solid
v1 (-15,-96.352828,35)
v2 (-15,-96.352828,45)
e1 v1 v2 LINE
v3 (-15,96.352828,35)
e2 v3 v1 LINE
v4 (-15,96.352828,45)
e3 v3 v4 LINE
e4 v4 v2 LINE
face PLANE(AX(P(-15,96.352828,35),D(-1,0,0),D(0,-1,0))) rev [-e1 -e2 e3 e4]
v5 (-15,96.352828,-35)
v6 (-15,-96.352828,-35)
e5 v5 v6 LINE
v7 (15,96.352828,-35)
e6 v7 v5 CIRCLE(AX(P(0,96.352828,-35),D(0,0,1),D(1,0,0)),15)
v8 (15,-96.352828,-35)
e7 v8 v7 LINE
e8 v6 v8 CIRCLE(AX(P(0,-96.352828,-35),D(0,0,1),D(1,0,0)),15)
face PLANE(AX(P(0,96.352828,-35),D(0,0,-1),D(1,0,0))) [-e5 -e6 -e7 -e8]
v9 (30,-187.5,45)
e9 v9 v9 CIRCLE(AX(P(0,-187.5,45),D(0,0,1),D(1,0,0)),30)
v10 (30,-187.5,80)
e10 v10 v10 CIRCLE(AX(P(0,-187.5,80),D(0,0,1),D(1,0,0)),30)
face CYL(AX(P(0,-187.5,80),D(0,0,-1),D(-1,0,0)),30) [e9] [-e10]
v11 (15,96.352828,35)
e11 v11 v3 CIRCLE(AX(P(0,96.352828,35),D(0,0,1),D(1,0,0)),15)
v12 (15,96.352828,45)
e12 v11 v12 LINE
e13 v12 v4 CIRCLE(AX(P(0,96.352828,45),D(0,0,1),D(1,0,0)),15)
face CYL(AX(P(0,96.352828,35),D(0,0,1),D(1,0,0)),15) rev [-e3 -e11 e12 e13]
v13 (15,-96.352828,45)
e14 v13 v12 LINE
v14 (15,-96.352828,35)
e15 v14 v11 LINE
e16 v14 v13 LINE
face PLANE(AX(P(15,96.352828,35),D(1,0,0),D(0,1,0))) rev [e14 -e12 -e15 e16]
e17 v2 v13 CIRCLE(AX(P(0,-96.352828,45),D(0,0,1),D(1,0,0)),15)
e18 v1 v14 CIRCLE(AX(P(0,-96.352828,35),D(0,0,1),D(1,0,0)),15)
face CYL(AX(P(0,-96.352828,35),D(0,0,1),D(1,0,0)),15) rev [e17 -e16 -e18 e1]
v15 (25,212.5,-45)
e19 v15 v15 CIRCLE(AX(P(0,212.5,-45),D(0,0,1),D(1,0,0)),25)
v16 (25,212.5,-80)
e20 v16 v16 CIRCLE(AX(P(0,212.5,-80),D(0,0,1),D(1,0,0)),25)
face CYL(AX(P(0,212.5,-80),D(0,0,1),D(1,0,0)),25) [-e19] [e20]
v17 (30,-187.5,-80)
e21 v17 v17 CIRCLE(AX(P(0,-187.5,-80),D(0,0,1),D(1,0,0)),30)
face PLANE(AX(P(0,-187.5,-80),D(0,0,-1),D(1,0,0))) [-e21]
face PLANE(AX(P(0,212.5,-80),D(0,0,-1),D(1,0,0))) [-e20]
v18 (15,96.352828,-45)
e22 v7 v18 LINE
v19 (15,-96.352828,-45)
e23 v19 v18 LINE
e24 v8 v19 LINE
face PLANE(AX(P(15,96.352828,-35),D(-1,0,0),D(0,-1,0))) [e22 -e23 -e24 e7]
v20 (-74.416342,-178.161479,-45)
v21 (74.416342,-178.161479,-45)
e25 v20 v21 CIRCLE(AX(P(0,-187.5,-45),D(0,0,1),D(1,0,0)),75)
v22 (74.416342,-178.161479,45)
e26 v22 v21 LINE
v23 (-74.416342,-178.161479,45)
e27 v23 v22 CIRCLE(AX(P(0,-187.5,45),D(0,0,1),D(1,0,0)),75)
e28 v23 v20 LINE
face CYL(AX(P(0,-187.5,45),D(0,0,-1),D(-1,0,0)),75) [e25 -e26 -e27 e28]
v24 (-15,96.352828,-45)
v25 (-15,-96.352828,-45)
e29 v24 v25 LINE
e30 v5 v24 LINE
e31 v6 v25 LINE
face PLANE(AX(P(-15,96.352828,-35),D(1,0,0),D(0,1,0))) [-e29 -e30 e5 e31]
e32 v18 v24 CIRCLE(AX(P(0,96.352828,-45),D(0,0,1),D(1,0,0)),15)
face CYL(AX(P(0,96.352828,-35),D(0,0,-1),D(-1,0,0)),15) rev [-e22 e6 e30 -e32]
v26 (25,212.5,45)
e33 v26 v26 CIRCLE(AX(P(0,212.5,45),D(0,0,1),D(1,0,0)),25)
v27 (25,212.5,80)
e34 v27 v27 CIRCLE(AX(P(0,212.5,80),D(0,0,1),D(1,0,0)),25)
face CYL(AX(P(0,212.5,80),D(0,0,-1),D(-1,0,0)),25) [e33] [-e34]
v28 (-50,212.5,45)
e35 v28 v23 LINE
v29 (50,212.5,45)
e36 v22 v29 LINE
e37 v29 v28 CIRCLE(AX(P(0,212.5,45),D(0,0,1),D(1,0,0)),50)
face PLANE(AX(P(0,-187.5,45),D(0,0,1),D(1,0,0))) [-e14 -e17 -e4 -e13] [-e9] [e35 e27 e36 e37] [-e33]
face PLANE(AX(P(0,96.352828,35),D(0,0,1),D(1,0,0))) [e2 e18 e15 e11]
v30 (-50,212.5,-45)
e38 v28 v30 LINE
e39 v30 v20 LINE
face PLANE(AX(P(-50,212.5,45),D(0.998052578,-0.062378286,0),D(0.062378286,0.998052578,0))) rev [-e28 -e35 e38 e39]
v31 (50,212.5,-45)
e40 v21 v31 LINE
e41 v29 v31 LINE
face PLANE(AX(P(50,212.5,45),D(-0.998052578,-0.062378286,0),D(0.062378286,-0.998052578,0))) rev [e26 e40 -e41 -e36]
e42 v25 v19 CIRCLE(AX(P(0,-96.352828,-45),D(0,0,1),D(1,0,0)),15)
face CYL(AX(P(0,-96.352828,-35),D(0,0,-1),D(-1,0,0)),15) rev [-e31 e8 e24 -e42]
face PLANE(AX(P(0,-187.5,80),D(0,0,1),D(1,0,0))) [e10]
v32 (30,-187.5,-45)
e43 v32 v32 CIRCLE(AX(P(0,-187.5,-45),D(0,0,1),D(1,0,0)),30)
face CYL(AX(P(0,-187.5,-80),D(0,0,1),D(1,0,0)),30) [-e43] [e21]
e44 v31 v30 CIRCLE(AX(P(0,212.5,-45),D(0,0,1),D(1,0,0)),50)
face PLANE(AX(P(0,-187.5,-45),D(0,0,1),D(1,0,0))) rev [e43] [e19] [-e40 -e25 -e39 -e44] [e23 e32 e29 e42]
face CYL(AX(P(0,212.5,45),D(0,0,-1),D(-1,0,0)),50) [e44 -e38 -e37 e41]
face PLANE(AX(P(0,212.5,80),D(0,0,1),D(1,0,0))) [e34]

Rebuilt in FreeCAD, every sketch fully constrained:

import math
import FreeCAD as App
import Part
import Sketcher

V = App.Vector

doc = App.newDocument("Part")
body = doc.addObject("PartDesign::Body", "Body")

sketch1 = body.newObject("Sketcher::SketchObject", "Sketch")
sketch1.AttachmentSupport = (doc.getObject("XY_Plane"), [""])
sketch1.MapMode = "FlatFace"
sketch1.addGeometry(Part.LineSegment(V(-50, 212, 0), V(-74, -178, 0)), False)
sketch1.addGeometry(Part.ArcOfCircle(Part.Circle(V(0, -188, 0), V(0, 0, 1), 75), math.radians(173), math.radians(367)), False)
sketch1.addGeometry(Part.LineSegment(V(74, -178, 0), V(50, 212, 0)), False)
sketch1.addGeometry(Part.ArcOfCircle(Part.Circle(V(0, 212, 0), V(0, 0, 1), 50), math.radians(0), math.radians(180)), False)
sketch1.addConstraint(Sketcher.Constraint("Coincident", 0, 2, 1, 1))
sketch1.addConstraint(Sketcher.Constraint("Coincident", 1, 2, 2, 1))
sketch1.addConstraint(Sketcher.Constraint("Coincident", 2, 2, 3, 1))
sketch1.addConstraint(Sketcher.Constraint("Coincident", 3, 2, 0, 1))
sketch1.addConstraint(Sketcher.Constraint("Symmetric", 0, 2, 1, 2, -2))
sketch1.addConstraint(Sketcher.Constraint("Symmetric", 2, 2, 3, 2, -2))
sketch1.addConstraint(Sketcher.Constraint("Horizontal", 3, 3, 2, 2))
sketch1.addConstraint(Sketcher.Constraint("Radius", 1, 75.0))
sketch1.addConstraint(Sketcher.Constraint("Radius", 3, 50.0))
sketch1.addConstraint(Sketcher.Constraint("DistanceY", 1, 3, 3, 3, 400.0))
sketch1.addConstraint(Sketcher.Constraint("DistanceY", 1, 3, -1, 1, 187.5))
sketch1.addConstraint(Sketcher.Constraint("DistanceY", 0, 2, -1, 1, 178.161479))
pad1 = body.newObject("PartDesign::Pad", "Pad")
pad1.Profile = sketch1
pad1.Length = 90
pad1.Midplane = True

sketch2 = body.newObject("Sketcher::SketchObject", "Sketch001")
sketch2.AttachmentSupport = (doc.getObject("XY_Plane"), [""])
sketch2.MapMode = "FlatFace"
sketch2.AttachmentOffset = App.Placement(V(0, 0, 45), App.Rotation())
sketch2.addGeometry(Part.Circle(V(0, 212, 0), V(0, 0, 1), 25), False)
sketch2.addGeometry(Part.Circle(V(0, -188, 0), V(0, 0, 1), 30), False)
sketch2.addConstraint(Sketcher.Constraint("PointOnObject", 0, 3, -2))
sketch2.addConstraint(Sketcher.Constraint("PointOnObject", 1, 3, -2))
sketch2.addConstraint(Sketcher.Constraint("Diameter", 0, 50.0))
sketch2.addConstraint(Sketcher.Constraint("Diameter", 1, 60.0))
sketch2.addConstraint(Sketcher.Constraint("DistanceY", 1, 3, 0, 3, 400.0))
sketch2.addConstraint(Sketcher.Constraint("DistanceY", -1, 1, 0, 3, 212.5))
pad2 = body.newObject("PartDesign::Pad", "Pad001")
pad2.Profile = sketch2
pad2.Length = 35
doc.recompute()

mirrored = body.newObject("PartDesign::Mirrored", "Mirrored")
mirrored.Originals = [pad2]
mirrored.MirrorPlane = (doc.getObject("XY_Plane"), [""])
body.Tip = mirrored

sketch3 = body.newObject("Sketcher::SketchObject", "Sketch002")
sketch3.AttachmentSupport = (doc.getObject("XY_Plane"), [""])
sketch3.MapMode = "FlatFace"
sketch3.AttachmentOffset = App.Placement(V(0, 0, 45), App.Rotation())
sketch3.addGeometry(Part.LineSegment(V(15, -96, 0), V(15, 96, 0)), False)
sketch3.addGeometry(Part.ArcOfCircle(Part.Circle(V(0, 96, 0), V(0, 0, 1), 15), math.radians(0), math.radians(180)), False)
sketch3.addGeometry(Part.LineSegment(V(-15, 96, 0), V(-15, -96, 0)), False)
sketch3.addGeometry(Part.ArcOfCircle(Part.Circle(V(0, -96, 0), V(0, 0, 1), 15), math.radians(180), math.radians(360)), False)
sketch3.addConstraint(Sketcher.Constraint("Tangent", 0, 2, 1, 1))
sketch3.addConstraint(Sketcher.Constraint("Tangent", 1, 2, 2, 1))
sketch3.addConstraint(Sketcher.Constraint("Tangent", 2, 2, 3, 1))
sketch3.addConstraint(Sketcher.Constraint("Tangent", 3, 2, 0, 1))
sketch3.addConstraint(Sketcher.Constraint("Vertical", 0))
sketch3.addConstraint(Sketcher.Constraint("Vertical", 2))
sketch3.addConstraint(Sketcher.Constraint("Symmetric", 1, 3, 3, 3, -1, 1))
sketch3.addConstraint(Sketcher.Constraint("Radius", 1, 15.0))
sketch3.addConstraint(Sketcher.Constraint("DistanceY", 0, 1, 0, 2, 192.705657))
pocket1 = body.newObject("PartDesign::Pocket", "Pocket")
pocket1.Profile = sketch3
pocket1.Length = 10
doc.recompute()

mirrored2 = body.newObject("PartDesign::Mirrored", "Mirrored001")
mirrored2.Originals = [pocket1]
mirrored2.MirrorPlane = (doc.getObject("XY_Plane"), [""])
body.Tip = mirrored2

doc.recompute()
